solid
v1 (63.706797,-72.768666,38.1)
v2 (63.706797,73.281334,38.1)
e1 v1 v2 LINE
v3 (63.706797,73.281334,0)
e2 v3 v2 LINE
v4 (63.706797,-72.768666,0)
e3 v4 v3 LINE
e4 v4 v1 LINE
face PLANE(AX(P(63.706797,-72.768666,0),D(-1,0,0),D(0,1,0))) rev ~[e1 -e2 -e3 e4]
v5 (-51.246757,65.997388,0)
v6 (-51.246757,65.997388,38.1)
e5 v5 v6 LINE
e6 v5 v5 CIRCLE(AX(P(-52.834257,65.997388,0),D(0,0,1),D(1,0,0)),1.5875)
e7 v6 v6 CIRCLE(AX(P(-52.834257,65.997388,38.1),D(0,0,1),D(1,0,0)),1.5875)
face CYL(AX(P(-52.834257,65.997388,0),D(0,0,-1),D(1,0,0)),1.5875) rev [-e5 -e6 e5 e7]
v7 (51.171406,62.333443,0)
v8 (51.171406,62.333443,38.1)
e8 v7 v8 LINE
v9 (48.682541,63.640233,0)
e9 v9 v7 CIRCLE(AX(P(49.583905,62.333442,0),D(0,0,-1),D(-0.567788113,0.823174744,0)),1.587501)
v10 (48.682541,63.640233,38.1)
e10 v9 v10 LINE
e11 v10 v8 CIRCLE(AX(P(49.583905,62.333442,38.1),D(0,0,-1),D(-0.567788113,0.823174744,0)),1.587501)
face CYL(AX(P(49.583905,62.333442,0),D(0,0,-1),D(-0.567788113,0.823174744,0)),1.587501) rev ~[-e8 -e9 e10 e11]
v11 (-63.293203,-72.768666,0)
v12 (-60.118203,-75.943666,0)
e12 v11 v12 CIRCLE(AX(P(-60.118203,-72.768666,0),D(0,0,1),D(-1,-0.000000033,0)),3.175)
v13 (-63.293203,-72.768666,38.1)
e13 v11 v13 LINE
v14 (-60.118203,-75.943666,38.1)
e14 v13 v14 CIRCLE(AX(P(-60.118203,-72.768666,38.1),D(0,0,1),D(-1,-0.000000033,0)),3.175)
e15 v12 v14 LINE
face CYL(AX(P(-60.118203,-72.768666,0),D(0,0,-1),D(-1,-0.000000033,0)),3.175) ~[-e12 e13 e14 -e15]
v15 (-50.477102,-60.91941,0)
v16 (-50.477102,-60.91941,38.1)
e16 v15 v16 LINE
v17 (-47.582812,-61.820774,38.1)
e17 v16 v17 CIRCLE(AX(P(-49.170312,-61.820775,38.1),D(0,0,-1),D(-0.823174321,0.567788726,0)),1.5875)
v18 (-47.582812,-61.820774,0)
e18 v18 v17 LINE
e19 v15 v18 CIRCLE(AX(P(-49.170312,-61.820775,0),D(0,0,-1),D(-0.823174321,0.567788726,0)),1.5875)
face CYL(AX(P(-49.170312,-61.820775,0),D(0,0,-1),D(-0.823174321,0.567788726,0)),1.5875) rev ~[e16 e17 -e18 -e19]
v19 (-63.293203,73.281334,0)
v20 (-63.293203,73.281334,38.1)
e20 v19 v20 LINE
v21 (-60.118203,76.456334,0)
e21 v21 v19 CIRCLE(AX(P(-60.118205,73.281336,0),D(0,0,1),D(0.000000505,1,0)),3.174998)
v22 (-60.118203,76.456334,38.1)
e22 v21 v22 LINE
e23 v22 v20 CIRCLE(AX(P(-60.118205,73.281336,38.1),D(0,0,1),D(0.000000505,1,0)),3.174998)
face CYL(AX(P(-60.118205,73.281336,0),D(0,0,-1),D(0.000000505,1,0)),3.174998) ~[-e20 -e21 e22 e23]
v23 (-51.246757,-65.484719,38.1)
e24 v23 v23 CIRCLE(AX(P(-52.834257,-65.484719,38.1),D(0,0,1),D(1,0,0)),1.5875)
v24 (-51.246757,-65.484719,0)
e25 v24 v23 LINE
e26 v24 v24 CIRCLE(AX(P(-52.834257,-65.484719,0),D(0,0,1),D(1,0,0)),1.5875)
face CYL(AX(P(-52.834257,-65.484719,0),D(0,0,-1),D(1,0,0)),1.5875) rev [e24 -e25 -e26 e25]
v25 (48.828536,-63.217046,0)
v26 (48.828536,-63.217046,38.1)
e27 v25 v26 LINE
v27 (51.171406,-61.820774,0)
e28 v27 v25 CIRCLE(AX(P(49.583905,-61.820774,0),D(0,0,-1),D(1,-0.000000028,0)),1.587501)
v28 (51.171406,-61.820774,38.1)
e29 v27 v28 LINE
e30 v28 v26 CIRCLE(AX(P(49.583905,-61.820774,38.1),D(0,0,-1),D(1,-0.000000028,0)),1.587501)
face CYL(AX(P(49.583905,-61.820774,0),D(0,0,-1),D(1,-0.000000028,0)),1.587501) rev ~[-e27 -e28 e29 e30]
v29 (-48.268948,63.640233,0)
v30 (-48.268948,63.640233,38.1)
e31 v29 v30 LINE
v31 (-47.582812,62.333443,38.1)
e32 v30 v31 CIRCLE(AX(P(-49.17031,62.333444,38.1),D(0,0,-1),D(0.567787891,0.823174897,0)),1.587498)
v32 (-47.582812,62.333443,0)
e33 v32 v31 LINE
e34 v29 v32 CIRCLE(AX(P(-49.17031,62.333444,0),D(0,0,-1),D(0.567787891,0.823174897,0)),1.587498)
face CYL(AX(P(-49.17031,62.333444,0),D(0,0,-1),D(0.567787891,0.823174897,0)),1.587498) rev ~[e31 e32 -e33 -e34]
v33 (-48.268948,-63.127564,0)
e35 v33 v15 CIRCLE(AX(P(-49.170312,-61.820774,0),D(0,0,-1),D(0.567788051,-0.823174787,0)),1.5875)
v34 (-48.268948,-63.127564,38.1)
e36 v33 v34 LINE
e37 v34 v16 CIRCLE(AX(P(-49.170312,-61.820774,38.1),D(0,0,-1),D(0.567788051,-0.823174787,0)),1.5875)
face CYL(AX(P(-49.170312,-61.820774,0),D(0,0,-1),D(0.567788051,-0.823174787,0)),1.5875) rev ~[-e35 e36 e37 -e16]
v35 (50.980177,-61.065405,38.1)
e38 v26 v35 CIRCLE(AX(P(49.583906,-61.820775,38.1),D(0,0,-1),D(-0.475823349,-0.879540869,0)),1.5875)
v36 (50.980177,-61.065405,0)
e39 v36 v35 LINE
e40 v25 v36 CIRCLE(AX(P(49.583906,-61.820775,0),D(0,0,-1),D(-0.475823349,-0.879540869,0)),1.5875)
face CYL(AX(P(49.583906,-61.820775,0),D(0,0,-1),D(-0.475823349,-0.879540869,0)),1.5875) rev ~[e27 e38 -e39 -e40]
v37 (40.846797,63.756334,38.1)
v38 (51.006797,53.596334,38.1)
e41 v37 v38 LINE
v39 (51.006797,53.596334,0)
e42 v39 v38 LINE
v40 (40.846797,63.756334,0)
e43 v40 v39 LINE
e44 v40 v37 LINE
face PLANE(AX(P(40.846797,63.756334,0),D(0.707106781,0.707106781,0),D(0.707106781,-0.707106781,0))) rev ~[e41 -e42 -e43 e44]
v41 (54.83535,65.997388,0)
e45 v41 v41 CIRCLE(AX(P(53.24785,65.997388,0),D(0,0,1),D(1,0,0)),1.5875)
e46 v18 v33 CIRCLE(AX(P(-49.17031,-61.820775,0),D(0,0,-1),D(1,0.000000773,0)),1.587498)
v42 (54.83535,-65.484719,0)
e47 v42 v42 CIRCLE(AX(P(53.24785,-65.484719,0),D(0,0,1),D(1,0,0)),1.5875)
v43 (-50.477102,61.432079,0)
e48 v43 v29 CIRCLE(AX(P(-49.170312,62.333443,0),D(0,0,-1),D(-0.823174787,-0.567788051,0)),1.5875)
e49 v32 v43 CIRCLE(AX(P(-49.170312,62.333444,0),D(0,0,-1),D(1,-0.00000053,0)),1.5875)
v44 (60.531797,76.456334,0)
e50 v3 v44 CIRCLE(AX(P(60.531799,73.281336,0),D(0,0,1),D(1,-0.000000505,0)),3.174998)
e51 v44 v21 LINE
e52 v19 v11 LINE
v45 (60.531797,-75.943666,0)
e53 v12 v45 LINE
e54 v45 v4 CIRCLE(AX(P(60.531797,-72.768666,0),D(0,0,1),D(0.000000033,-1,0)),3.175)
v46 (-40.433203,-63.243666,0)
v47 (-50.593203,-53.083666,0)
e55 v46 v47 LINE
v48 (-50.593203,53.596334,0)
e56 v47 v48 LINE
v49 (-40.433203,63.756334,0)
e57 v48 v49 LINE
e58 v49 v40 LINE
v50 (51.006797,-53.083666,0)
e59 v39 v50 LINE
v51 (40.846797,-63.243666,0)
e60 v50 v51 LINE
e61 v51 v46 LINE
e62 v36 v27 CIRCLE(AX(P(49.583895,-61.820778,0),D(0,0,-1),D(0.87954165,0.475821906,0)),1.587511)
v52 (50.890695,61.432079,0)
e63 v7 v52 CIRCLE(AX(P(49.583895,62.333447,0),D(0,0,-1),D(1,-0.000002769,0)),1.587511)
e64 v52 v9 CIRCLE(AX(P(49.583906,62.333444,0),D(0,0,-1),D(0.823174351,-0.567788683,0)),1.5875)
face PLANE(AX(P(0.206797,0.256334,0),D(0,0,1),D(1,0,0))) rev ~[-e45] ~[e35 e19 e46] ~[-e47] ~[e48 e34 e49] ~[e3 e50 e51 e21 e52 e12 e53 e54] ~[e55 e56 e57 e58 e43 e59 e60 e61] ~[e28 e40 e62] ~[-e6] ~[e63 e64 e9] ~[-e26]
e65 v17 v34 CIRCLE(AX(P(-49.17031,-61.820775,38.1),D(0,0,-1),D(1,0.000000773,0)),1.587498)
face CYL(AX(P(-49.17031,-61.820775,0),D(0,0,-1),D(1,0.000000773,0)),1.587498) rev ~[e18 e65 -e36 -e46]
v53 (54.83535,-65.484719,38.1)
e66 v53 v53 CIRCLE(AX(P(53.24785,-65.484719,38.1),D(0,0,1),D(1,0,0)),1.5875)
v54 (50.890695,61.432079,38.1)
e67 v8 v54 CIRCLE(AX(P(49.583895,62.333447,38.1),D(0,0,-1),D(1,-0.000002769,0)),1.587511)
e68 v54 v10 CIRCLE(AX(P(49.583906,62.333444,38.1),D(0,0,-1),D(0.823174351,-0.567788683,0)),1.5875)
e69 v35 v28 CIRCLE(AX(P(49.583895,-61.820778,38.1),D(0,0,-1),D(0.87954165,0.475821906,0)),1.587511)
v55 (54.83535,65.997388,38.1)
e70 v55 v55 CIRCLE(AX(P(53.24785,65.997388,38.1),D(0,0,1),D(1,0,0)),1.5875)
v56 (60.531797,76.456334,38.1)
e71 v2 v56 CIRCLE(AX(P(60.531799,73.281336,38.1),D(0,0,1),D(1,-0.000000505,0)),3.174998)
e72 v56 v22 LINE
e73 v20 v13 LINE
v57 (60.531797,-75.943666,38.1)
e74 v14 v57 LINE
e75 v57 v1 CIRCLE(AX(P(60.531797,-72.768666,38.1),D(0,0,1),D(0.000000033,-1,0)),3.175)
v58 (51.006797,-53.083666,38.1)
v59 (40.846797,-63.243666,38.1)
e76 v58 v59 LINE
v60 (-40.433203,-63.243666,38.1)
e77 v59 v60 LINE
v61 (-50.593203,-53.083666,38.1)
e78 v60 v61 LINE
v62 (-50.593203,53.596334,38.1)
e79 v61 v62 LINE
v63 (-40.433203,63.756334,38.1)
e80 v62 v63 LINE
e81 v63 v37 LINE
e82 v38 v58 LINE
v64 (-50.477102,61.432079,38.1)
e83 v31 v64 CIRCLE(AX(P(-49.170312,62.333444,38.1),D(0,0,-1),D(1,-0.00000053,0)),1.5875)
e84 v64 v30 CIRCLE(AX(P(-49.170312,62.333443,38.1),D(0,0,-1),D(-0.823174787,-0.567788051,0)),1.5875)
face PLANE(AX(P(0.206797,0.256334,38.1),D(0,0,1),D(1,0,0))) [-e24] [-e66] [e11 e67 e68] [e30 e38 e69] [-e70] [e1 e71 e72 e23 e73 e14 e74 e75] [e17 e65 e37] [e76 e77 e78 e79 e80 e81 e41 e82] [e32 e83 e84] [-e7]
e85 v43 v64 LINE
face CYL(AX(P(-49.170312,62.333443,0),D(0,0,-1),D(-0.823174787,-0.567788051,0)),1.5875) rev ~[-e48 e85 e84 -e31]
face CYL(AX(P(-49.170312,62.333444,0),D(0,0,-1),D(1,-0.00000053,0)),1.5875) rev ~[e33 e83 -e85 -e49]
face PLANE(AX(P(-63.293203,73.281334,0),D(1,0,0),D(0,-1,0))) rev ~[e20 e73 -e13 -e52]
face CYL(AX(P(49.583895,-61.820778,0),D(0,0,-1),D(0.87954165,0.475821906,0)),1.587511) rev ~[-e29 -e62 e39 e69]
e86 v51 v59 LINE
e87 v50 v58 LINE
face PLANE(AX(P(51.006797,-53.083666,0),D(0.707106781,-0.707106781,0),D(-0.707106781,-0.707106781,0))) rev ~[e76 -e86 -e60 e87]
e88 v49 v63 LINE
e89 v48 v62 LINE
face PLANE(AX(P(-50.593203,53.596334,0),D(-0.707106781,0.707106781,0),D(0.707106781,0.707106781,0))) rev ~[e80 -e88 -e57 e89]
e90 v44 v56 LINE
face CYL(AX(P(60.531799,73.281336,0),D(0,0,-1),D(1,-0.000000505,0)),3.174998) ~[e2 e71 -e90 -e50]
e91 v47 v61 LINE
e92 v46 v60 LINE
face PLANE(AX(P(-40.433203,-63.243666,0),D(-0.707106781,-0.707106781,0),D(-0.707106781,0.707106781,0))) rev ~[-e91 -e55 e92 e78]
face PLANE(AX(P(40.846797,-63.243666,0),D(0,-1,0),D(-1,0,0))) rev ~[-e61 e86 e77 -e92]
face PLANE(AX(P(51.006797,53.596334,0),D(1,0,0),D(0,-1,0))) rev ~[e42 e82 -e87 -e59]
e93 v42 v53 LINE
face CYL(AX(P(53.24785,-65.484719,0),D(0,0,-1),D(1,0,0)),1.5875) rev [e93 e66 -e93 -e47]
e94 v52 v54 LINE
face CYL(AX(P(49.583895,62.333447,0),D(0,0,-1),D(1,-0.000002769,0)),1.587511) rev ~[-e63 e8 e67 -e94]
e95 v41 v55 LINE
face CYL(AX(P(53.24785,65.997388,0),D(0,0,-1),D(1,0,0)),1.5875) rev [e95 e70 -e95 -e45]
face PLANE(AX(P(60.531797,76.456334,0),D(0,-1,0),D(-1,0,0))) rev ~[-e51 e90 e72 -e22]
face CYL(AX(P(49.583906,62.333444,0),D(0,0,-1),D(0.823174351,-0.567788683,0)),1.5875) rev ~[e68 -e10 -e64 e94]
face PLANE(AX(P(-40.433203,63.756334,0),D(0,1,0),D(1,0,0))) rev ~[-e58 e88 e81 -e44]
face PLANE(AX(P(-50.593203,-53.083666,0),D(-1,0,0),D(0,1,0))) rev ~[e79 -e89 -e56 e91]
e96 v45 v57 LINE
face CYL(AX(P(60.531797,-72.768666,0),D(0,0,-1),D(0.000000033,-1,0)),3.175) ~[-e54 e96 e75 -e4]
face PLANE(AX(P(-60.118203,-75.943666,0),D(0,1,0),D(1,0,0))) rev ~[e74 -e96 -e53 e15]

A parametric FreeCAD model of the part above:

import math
import FreeCAD as App
import Part
import Sketcher
Q = App.Units.Quantity


def add_polygon(sketch, points):
    """Adds a closed chain of lines whose ends are joined by coincident constraints."""
    first, n = sketch.GeometryCount, len(points)
    for a, b in zip(points, points[1:] + points[:1]):
        sketch.addGeometry(Part.LineSegment(App.Vector(*a, 0), App.Vector(*b, 0)), False)
    for i in range(n):
        sketch.addConstraint(Sketcher.Constraint("Coincident", first + i, 2, first + (i + 1) % n, 1))

doc = App.newDocument("Part")
body = doc.addObject("PartDesign::Body", "Body")

sketch1 = body.newObject("Sketcher::SketchObject", "Sketch")
sketch1.AttachmentSupport = (doc.getObject("XY_Plane"), [""])
sketch1.MapMode = "FlatFace"
sketch1.addGeometry(Part.LineSegment(App.Vector(60.5, 76.5, 0), App.Vector(-60.1, 76.5, 0)), False)
sketch1.addGeometry(Part.ArcOfCircle(Part.Circle(App.Vector(-60.1, 73.3, 0), App.Vector(0, 0, 1), 3.2), math.radians(90), math.radians(180)), False)
sketch1.addGeometry(Part.LineSegment(App.Vector(-63.3, 73.3, 0), App.Vector(-63.3, -72.8, 0)), False)
sketch1.addGeometry(Part.ArcOfCircle(Part.Circle(App.Vector(-60.1, -72.8, 0), App.Vector(0, 0, 1), 3.2), math.radians(-180), math.radians(-90)), False)
sketch1.addGeometry(Part.LineSegment(App.Vector(-60.1, -75.9, 0), App.Vector(60.5, -75.9, 0)), False)
sketch1.addGeometry(Part.ArcOfCircle(Part.Circle(App.Vector(60.5, -72.8, 0), App.Vector(0, 0, 1), 3.2), math.radians(-90), math.radians(0)), False)
sketch1.addGeometry(Part.LineSegment(App.Vector(63.7, -72.8, 0), App.Vector(63.7, 73.3, 0)), False)
sketch1.addGeometry(Part.ArcOfCircle(Part.Circle(App.Vector(60.5, 73.3, 0), App.Vector(0, 0, 1), 3.2), math.radians(0), math.radians(90)), False)
sketch1.addGeometry(Part.Circle(App.Vector(-52.8, -65.5, 0), App.Vector(0, 0, 1), 1.6), False)
sketch1.addGeometry(Part.Circle(App.Vector(53.2, -65.5, 0), App.Vector(0, 0, 1), 1.6), False)
sketch1.addGeometry(Part.ArcOfCircle(Part.Circle(App.Vector(-49.2, 62.3, 0), App.Vector(0, 0, 1), 1.6), math.radians(55), math.radians(215)), False)
sketch1.addGeometry(Part.ArcOfCircle(Part.Circle(App.Vector(-49.2, 62.3, 0), App.Vector(0, 0, 1), 1.6), math.radians(0), math.radians(55)), False)
sketch1.addGeometry(Part.ArcOfCircle(Part.Circle(App.Vector(-49.2, 62.3, 0), App.Vector(0, 0, 1), 1.6), math.radians(-145), math.radians(0)), False)
add_polygon(sketch1, [(-50.6, -53.1), (-50.6, 53.6), (-40.4, 63.8), (40.8, 63.8), (51, 53.6), (51, -53.1), (40.8, -63.2), (-40.4, -63.2)])
sketch1.addGeometry(Part.ArcOfCircle(Part.Circle(App.Vector(-49.2, -61.8, 0), App.Vector(0, 0, 1), 1.6), math.radians(145), math.radians(305)), False)
sketch1.addGeometry(Part.ArcOfCircle(Part.Circle(App.Vector(-49.2, -61.8, 0), App.Vector(0, 0, 1), 1.6), math.radians(0), math.radians(145)), False)
sketch1.addGeometry(Part.ArcOfCircle(Part.Circle(App.Vector(-49.2, -61.8, 0), App.Vector(0, 0, 1), 1.6), math.radians(-55), math.radians(0)), False)
sketch1.addGeometry(Part.ArcOfCircle(Part.Circle(App.Vector(49.6, -61.8, 0), App.Vector(0, 0, 1), 1.6), math.radians(0), math.radians(28)), False)
sketch1.addGeometry(Part.ArcOfCircle(Part.Circle(App.Vector(49.6, -61.8, 0), App.Vector(0, 0, 1), 1.6), math.radians(-118), math.radians(0)), False)
sketch1.addGeometry(Part.ArcOfCircle(Part.Circle(App.Vector(49.6, -61.8, 0), App.Vector(0, 0, 1), 1.6), math.radians(28), math.radians(242)), False)
sketch1.addGeometry(Part.ArcOfCircle(Part.Circle(App.Vector(49.6, 62.3, 0), App.Vector(0, 0, 1), 1.6), math.radians(0), math.radians(125)), False)
sketch1.addGeometry(Part.ArcOfCircle(Part.Circle(App.Vector(49.6, 62.3, 0), App.Vector(0, 0, 1), 1.6), math.radians(-35), math.radians(0)), False)
sketch1.addGeometry(Part.ArcOfCircle(Part.Circle(App.Vector(49.6, 62.3, 0), App.Vector(0, 0, 1), 1.6), math.radians(125), math.radians(325)), False)
sketch1.addGeometry(Part.Circle(App.Vector(-52.8, 66, 0), App.Vector(0, 0, 1), 1.6), False)
sketch1.addGeometry(Part.Circle(App.Vector(53.2, 66, 0), App.Vector(0, 0, 1), 1.6), False)
sketch1.addConstraint(Sketcher.Constraint("Tangent", 0, 2, 1, 1))
sketch1.addConstraint(Sketcher.Constraint("Tangent", 1, 2, 2, 1))
sketch1.addConstraint(Sketcher.Constraint("Tangent", 2, 2, 3, 1))
sketch1.addConstraint(Sketcher.Constraint("Tangent", 3, 2, 4, 1))
sketch1.addConstraint(Sketcher.Constraint("Tangent", 4, 2, 5, 1))
sketch1.addConstraint(Sketcher.Constraint("Tangent", 5, 2, 6, 1))
sketch1.addConstraint(Sketcher.Constraint("Tangent", 6, 2, 7, 1))
sketch1.addConstraint(Sketcher.Constraint("Tangent", 7, 2, 0, 1))
sketch1.addConstraint(Sketcher.Constraint("Tangent", 10, 1, 11, 2))
sketch1.addConstraint(Sketcher.Constraint("Tangent", 11, 1, 12, 2))
sketch1.addConstraint(Sketcher.Constraint("Tangent", 12, 1, 10, 2))
sketch1.addConstraint(Sketcher.Constraint("Tangent", 21, 1, 22, 2))
sketch1.addConstraint(Sketcher.Constraint("Tangent", 22, 1, 23, 2))
sketch1.addConstraint(Sketcher.Constraint("Tangent", 23, 1, 21, 2))
sketch1.addConstraint(Sketcher.Constraint("Coincident", 24, 1, 25, 2))
sketch1.addConstraint(Sketcher.Constraint("Tangent", 25, 1, 26, 2))
sketch1.addConstraint(Sketcher.Constraint("Tangent", 26, 1, 24, 2))
sketch1.addConstraint(Sketcher.Constraint("Coincident", 27, 1, 28, 2))
sketch1.addConstraint(Sketcher.Constraint("Tangent", 28, 1, 29, 2))
sketch1.addConstraint(Sketcher.Constraint("Tangent", 29, 1, 27, 2))
sketch1.addConstraint(Sketcher.Constraint("Horizontal", 0))
sketch1.addConstraint(Sketcher.Constraint("Vertical", 2))
sketch1.addConstraint(Sketcher.Constraint("Horizontal", 4))
sketch1.addConstraint(Sketcher.Constraint("Vertical", 6))
sketch1.addConstraint(Sketcher.Constraint("Vertical", 13))
sketch1.addConstraint(Sketcher.Constraint("Horizontal", 15))
sketch1.addConstraint(Sketcher.Constraint("Vertical", 17))
sketch1.addConstraint(Sketcher.Constraint("Horizontal", 19))
sketch1.addConstraint(Sketcher.Constraint("Equal", 1, 3))
sketch1.addConstraint(Sketcher.Constraint("Equal", 3, 5))
sketch1.addConstraint(Sketcher.Constraint("Equal", 5, 7))
sketch1.addConstraint(Sketcher.Constraint("Equal", 8, 9))
sketch1.addConstraint(Sketcher.Constraint("Equal", 9, 10))
sketch1.addConstraint(Sketcher.Constraint("Equal", 12, 21))
sketch1.addConstraint(Sketcher.Constraint("Equal", 22, 25))
sketch1.addConstraint(Sketcher.Constraint("Equal", 25, 26))
sketch1.addConstraint(Sketcher.Constraint("Equal", 26, 27))
sketch1.addConstraint(Sketcher.Constraint("Equal", 24, 28))
sketch1.addConstraint(Sketcher.Constraint("Equal", 29, 30))
sketch1.addConstraint(Sketcher.Constraint("Equal", 30, 31))
sketch1.addConstraint(Sketcher.Constraint("Perpendicular", 14, 16))
sketch1.addConstraint(Sketcher.Constraint("Perpendicular", 16, 18))
sketch1.addConstraint(Sketcher.Constraint("Perpendicular", 18, 20))
sketch1.addConstraint(Sketcher.Constraint("Horizontal", 8, 3, 9, 3))
sketch1.addConstraint(Sketcher.Constraint("Horizontal", 23, 3, 25, 3))
sketch1.addConstraint(Sketcher.Constraint("Horizontal", 12, 3, 27, 3))
sketch1.addConstraint(Sketcher.Constraint("Horizontal", 30, 3, 31, 3))
sketch1.addConstraint(Sketcher.Constraint("Horizontal", 29, 3, 11, 1))
sketch1.addConstraint(Sketcher.Constraint("Horizontal", 13, 2, 16, 2))
sketch1.addConstraint(Sketcher.Constraint("Horizontal", 17, 2, 20, 2))
sketch1.addConstraint(Sketcher.Constraint("Horizontal", 26, 3, 22, 1))
sketch1.addConstraint(Sketcher.Constraint("Horizontal", 22, 1, 24, 1))
sketch1.addConstraint(Sketcher.Constraint("Horizontal", 11, 1, 27, 1))
sketch1.addConstraint(Sketcher.Constraint("Horizontal", 12, 1, 28, 1))
sketch1.addConstraint(Sketcher.Constraint("Horizontal", 10, 1, 29, 1))
sketch1.addConstraint(Sketcher.Constraint("Vertical", 12, 3, 21, 3))
sketch1.addConstraint(Sketcher.Constraint("Vertical", 26, 3, 27, 3))
sketch1.addConstraint(Sketcher.Constraint("Vertical", 8, 3, 30, 3))
sketch1.addConstraint(Sketcher.Constraint("Vertical", 9, 3, 31, 3))
sketch1.addConstraint(Sketcher.Constraint("Vertical", 15, 2, 18, 2))
sketch1.addConstraint(Sketcher.Constraint("Vertical", 14, 2, 19, 2))
sketch1.addConstraint(Sketcher.Constraint("Vertical", 12, 1, 21, 1))
sketch1.addConstraint(Sketcher.Constraint("Vertical", 10, 1, 23, 1))
sketch1.addConstraint(Sketcher.Constraint("Diameter", 8, Q("0.125 in")))
sketch1.addConstraint(Sketcher.Constraint("DistanceX", 15, 1, 15, 2, Q("3.2 in")))
sketch1.addConstraint(Sketcher.Constraint("DistanceY", 13, 1, 13, 2, Q("4.2 in")))
sketch1.addConstraint(Sketcher.Constraint("Radius", 1, Q("0.1249999 in")))
sketch1.addConstraint(Sketcher.Constraint("DistanceX", 0, 2, 0, 1, Q("4.75 in")))
sketch1.addConstraint(Sketcher.Constraint("DistanceY", 2, 2, 2, 1, Q("5.75 in")))
sketch1.addConstraint(Sketcher.Constraint("DistanceX", 15, 2, 16, 2, Q("0.4 in")))
sketch1.addConstraint(Sketcher.Constraint("DistanceX", 15, 2, 7, 3, Q("0.7750001 in")))
sketch1.addConstraint(Sketcher.Constraint("DistanceY", 15, 2, 7, 3, Q("0.3750001 in")))
sketch1.addConstraint(Sketcher.Constraint("DistanceX", -1, 1, 7, 3, 60.531799))
sketch1.addConstraint(Sketcher.Constraint("DistanceX", 21, 1, -1, 1, 50.477102))
sketch1.addConstraint(Sketcher.Constraint("DistanceY", 10, 1, 14, 2, 0.116101))
sketch1.addConstraint(Sketcher.Constraint("DistanceX", 28, 3, 28, 1, 1.3068))
sketch1.addConstraint(Sketcher.Constraint("DistanceY", 8, 3, -1, 1, 65.484719))
sketch1.addConstraint(Sketcher.Constraint("DistanceX", -1, 1, 9, 3, 53.24785))
sketch1.addConstraint(Sketcher.Constraint("DistanceY", -1, 1, 30, 3, 65.997388))
sketch1.addConstraint(Sketcher.Constraint("DistanceX", 10, 1, -1, 1, 48.268948))
sketch1.addConstraint(Sketcher.Constraint("DistanceY", -1, 1, 12, 1, 61.432079))
sketch1.addConstraint(Sketcher.Constraint("DistanceY", 21, 1, -1, 1, 60.91941))
sketch1.addConstraint(Sketcher.Constraint("DistanceX", -1, 1, 29, 1, 48.682541))
sketch1.addConstraint(Sketcher.Constraint("DistanceX", 30, 3, 28, 3, 102.418152))
sketch1.addConstraint(Sketcher.Constraint("DistanceX", 25, 1, 24, 3, 0.755359))
sketch1.addConstraint(Sketcher.Constraint("DistanceX", 26, 1, 24, 1, 0.191229))
pad1 = body.newObject("PartDesign::Pad", "Pad")
pad1.Profile = sketch1
pad1.Length = Q("1.5 in")

doc.recompute()
